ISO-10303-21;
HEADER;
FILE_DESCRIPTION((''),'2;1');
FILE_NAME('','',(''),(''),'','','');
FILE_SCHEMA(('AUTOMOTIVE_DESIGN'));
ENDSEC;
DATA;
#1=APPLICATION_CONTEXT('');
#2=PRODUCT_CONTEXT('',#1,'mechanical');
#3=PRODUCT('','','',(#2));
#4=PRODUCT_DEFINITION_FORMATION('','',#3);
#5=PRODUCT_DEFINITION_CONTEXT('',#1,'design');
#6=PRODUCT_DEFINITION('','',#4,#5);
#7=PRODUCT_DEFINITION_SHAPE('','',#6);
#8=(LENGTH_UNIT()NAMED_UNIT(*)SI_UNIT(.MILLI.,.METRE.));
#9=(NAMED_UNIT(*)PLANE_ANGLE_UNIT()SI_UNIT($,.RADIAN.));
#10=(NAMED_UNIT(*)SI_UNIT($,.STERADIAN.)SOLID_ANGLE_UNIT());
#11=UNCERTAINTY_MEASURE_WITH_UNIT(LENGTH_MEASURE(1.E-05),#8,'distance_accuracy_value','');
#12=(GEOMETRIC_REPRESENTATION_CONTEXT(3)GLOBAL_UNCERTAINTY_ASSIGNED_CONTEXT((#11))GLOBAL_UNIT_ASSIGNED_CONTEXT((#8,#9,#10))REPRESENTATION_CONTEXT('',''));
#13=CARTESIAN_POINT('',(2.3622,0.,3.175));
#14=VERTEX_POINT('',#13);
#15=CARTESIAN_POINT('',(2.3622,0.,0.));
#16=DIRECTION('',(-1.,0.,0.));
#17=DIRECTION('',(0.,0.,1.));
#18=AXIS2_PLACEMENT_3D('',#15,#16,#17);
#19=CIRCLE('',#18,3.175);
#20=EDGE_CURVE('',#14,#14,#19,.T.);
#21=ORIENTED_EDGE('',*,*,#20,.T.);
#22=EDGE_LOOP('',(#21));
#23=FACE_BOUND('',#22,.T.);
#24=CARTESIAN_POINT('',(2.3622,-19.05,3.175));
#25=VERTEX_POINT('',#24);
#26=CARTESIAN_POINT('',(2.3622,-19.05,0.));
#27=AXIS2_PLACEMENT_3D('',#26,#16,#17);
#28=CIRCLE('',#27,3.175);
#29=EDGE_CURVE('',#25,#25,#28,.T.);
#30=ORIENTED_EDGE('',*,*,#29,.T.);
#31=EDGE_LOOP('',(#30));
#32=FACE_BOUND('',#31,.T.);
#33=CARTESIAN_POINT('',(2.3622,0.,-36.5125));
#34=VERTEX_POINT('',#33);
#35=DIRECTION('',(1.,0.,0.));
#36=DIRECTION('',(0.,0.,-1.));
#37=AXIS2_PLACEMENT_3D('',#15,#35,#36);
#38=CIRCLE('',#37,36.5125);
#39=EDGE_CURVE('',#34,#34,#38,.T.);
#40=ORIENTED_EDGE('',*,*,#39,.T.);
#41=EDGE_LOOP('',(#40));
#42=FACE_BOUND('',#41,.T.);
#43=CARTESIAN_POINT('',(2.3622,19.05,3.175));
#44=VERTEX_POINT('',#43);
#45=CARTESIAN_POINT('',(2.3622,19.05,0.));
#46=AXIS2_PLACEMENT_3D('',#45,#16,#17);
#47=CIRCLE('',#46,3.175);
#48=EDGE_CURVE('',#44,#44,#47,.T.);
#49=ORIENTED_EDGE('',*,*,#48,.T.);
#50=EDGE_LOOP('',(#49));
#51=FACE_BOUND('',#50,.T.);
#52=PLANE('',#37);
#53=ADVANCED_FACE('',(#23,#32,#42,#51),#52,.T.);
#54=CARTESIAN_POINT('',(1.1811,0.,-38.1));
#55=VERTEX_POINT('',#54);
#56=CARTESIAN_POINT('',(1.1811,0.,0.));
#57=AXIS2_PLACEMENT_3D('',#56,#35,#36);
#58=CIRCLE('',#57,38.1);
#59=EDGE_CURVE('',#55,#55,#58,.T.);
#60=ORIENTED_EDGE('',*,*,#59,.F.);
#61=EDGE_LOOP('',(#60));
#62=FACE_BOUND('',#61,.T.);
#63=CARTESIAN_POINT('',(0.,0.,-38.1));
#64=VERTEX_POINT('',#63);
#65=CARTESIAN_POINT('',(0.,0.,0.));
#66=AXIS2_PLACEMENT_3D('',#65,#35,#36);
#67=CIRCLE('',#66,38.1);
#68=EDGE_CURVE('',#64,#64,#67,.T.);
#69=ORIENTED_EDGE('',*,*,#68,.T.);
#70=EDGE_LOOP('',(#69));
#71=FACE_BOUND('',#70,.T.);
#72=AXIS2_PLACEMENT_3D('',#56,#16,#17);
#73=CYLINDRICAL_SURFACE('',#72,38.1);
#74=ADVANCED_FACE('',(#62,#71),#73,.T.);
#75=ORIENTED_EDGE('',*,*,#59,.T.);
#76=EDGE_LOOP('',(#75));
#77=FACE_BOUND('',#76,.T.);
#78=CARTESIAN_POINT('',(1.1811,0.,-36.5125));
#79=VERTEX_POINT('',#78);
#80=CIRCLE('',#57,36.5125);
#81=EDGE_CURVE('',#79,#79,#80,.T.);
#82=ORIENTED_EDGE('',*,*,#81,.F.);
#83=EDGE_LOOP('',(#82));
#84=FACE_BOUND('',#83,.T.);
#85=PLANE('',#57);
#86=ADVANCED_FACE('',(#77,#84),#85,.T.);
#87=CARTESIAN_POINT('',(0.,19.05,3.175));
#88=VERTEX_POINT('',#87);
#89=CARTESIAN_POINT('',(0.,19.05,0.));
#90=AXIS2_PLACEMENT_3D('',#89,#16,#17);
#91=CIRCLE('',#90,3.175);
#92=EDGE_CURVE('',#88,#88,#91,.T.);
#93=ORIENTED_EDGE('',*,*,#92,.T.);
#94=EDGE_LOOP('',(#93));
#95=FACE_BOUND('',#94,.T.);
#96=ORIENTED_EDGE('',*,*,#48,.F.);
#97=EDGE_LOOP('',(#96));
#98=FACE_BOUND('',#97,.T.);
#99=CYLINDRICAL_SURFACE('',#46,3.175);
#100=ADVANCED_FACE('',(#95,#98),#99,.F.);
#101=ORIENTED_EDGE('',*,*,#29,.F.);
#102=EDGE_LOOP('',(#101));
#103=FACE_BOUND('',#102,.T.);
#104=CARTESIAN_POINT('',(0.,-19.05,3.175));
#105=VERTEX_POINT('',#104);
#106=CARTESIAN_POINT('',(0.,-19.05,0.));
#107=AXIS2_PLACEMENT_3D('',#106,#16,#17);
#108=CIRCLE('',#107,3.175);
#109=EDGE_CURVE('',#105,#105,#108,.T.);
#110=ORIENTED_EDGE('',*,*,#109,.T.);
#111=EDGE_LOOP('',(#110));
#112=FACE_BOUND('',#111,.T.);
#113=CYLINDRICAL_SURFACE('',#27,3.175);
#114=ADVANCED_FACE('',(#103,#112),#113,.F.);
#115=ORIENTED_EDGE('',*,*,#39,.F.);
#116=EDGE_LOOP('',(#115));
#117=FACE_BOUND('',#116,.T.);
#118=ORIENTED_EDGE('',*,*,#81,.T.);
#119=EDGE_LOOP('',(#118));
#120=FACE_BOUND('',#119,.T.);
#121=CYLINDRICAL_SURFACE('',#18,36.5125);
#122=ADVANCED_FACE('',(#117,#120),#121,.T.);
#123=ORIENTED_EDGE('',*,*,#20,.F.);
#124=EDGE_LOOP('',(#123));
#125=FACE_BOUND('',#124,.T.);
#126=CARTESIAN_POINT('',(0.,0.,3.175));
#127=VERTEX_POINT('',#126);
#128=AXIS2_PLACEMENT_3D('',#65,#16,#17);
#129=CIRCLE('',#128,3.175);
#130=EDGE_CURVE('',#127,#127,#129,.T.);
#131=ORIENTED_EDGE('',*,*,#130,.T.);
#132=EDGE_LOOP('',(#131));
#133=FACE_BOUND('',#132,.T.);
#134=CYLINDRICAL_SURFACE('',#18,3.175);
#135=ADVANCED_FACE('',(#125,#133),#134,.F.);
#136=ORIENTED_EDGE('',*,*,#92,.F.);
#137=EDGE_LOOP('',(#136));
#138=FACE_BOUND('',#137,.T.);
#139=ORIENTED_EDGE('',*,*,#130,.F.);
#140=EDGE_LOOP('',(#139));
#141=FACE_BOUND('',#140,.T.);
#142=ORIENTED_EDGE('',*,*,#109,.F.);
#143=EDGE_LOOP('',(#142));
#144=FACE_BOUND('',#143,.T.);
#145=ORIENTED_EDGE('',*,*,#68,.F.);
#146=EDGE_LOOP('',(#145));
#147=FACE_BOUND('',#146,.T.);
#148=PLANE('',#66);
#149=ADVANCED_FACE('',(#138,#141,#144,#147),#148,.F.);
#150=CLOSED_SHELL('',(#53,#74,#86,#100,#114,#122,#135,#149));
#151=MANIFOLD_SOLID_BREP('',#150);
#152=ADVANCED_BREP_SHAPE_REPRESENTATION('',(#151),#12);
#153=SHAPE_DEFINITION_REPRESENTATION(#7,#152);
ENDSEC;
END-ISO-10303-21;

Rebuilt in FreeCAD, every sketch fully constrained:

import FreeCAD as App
import Part
import Sketcher

V = App.Vector
Q = App.Units.Quantity

doc = App.newDocument("Part")
body = doc.addObject("PartDesign::Body", "Body")

sketch1 = doc.addObject("Sketcher::SketchObject", "Sketch")
body.addObject(sketch1)
sketch1.AttachmentSupport = (doc.YZ_Plane, [""])
sketch1.MapMode = "FlatFace"
sketch1.addGeometry(Part.Circle(V(0, 0, 0), V(0, 0, 1), 38), False)
sketch1.addConstraint([
    Sketcher.Constraint("Coincident", 0, 3, -1, 1),
    Sketcher.Constraint("Diameter", 0, Q("3 in")),
])
pad1 = doc.addObject("PartDesign::Pad", "Pad")
body.addObject(pad1)
pad1.Profile = sketch1
pad1.Length = Q("0.0465 in")

sketch2 = doc.addObject("Sketcher::SketchObject", "Sketch001")
body.addObject(sketch2)
sketch2.AttachmentSupport = (doc.YZ_Plane, [""])
sketch2.MapMode = "FlatFace"
sketch2.AttachmentOffset = App.Placement(V(0, 0, 0.0465 * 25.4), App.Rotation())
sketch2.addGeometry(Part.Circle(V(0, 0, 0), V(0, 0, 1), 37), False)
sketch2.addConstraint([
    Sketcher.Constraint("Coincident", 0, 3, -1, 1),
    Sketcher.Constraint("Diameter", 0, Q("2.875 in")),
])
pad2 = doc.addObject("PartDesign::Pad", "Pad001")
body.addObject(pad2)
pad2.Profile = sketch2
pad2.Length = Q("0.0465 in")

sketch3 = doc.addObject("Sketcher::SketchObject", "Sketch002")
body.addObject(sketch3)
sketch3.AttachmentSupport = (doc.YZ_Plane, [""])
sketch3.MapMode = "FlatFace"
sketch3.addGeometry([
    Part.Circle(V(0, 0, 0), V(0, 0, 1), 3.2),
    Part.Circle(V(-19.1, 0, 0), V(0, 0, 1), 3.2),
    Part.Circle(V(19.1, 0, 0), V(0, 0, 1), 3.2),
], False)
sketch3.addConstraint([
    Sketcher.Constraint("Coincident", 0, 3, -1, 1),
    Sketcher.Constraint("Equal", 0, 1),
    Sketcher.Constraint("Equal", 1, 2),
    Sketcher.Constraint("Symmetric", 1, 3, 2, 3, -1, 1),
    Sketcher.Constraint("PointOnObject", 1, 3, -1),
    Sketcher.Constraint("Diameter", 0, Q("0.25 in")),
    Sketcher.Constraint("DistanceX", 1, 3, 2, 3, Q("1.5 in")),
])
pocket1 = doc.addObject("PartDesign::Pocket", "Pocket")
body.addObject(pocket1)
pocket1.Profile = sketch3
pocket1.Type = "ThroughAll"
pocket1.Reversed = True

doc.recompute()
